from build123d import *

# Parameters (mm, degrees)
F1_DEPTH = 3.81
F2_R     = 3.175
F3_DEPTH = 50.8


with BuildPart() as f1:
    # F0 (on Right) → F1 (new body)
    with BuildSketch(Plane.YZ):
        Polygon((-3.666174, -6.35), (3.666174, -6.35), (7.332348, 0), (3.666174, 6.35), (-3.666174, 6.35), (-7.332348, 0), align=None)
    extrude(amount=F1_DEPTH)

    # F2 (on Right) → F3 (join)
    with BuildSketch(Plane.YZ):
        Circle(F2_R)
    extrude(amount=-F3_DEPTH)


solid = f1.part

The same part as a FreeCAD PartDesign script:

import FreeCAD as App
import Part
import Sketcher
from FreeCAD import Vector
Q = App.Units.Quantity


def add_polygon(sketch, points):
    """Adds a closed chain of lines whose ends are joined by coincident constraints."""
    first, n = sketch.GeometryCount, len(points)
    for a, b in zip(points, points[1:] + points[:1]):
        sketch.addGeometry(Part.LineSegment(App.Vector(*a, 0), App.Vector(*b, 0)), False)
    for i in range(n):
        sketch.addConstraint(Sketcher.Constraint("Coincident", first + i, 2, first + (i + 1) % n, 1))

doc = App.newDocument("Part")
body = doc.addObject("PartDesign::Body", "Body")

# Sketch on YZ plane
sketch1 = body.newObject("Sketcher::SketchObject", "Sketch")
sketch1.AttachmentSupport = (doc.getObject("YZ_Plane"), [""])
sketch1.MapMode = "FlatFace"
add_polygon(sketch1, [(-3.666174, -6.35), (3.666174, -6.35), (7.332348, 0), (3.666174, 6.35), (-3.666174, 6.35), (-7.332348, 0)])  # lines 0-5
sketch1.addConstraint(Sketcher.Constraint("Horizontal", 0))
sketch1.addConstraint(Sketcher.Constraint("Horizontal", 3))
sketch1.addConstraint(Sketcher.Constraint("Symmetric", 0, 2, 3, 2, -1, 1))
sketch1.addConstraint(Sketcher.Constraint("Symmetric", 1, 2, 4, 2, -1, 1))
sketch1.addConstraint(Sketcher.Constraint("PointOnObject", 1, 2, -1))
sketch1.addConstraint(Sketcher.Constraint("Parallel", 2, 5))
sketch1.addConstraint(Sketcher.Constraint("Vertical", 0, 2, 2, 2))
sketch1.addConstraint(Sketcher.Constraint("Angle", 1, Q("60.000001 deg")))
sketch1.addConstraint(Sketcher.Constraint("DistanceY", 0, 2, 2, 2, Q("0.5 in")))
sketch1.addConstraint(Sketcher.Constraint("DistanceX", 0, 1, 0, 2, 7.332348))
pad1 = body.newObject("PartDesign::Pad", "Pad")
pad1.Profile = sketch1
pad1.Length = Q("0.15 in")

# Sketch on YZ plane
sketch2 = body.newObject("Sketcher::SketchObject", "Sketch001")
sketch2.AttachmentSupport = (doc.getObject("YZ_Plane"), [""])
sketch2.MapMode = "FlatFace"
sketch2.addGeometry(Part.Circle(Vector(0, 0, 0), Vector(0, 0, 1), 3.175), False)
sketch2.addConstraint(Sketcher.Constraint("Coincident", 0, 3, -1, 1))
sketch2.addConstraint(Sketcher.Constraint("Diameter", 0, Q("0.25 in")))
pad2 = body.newObject("PartDesign::Pad", "Pad001")
pad2.Profile = sketch2
pad2.Length = Q("2 in")
pad2.Reversed = True

doc.recompute()
